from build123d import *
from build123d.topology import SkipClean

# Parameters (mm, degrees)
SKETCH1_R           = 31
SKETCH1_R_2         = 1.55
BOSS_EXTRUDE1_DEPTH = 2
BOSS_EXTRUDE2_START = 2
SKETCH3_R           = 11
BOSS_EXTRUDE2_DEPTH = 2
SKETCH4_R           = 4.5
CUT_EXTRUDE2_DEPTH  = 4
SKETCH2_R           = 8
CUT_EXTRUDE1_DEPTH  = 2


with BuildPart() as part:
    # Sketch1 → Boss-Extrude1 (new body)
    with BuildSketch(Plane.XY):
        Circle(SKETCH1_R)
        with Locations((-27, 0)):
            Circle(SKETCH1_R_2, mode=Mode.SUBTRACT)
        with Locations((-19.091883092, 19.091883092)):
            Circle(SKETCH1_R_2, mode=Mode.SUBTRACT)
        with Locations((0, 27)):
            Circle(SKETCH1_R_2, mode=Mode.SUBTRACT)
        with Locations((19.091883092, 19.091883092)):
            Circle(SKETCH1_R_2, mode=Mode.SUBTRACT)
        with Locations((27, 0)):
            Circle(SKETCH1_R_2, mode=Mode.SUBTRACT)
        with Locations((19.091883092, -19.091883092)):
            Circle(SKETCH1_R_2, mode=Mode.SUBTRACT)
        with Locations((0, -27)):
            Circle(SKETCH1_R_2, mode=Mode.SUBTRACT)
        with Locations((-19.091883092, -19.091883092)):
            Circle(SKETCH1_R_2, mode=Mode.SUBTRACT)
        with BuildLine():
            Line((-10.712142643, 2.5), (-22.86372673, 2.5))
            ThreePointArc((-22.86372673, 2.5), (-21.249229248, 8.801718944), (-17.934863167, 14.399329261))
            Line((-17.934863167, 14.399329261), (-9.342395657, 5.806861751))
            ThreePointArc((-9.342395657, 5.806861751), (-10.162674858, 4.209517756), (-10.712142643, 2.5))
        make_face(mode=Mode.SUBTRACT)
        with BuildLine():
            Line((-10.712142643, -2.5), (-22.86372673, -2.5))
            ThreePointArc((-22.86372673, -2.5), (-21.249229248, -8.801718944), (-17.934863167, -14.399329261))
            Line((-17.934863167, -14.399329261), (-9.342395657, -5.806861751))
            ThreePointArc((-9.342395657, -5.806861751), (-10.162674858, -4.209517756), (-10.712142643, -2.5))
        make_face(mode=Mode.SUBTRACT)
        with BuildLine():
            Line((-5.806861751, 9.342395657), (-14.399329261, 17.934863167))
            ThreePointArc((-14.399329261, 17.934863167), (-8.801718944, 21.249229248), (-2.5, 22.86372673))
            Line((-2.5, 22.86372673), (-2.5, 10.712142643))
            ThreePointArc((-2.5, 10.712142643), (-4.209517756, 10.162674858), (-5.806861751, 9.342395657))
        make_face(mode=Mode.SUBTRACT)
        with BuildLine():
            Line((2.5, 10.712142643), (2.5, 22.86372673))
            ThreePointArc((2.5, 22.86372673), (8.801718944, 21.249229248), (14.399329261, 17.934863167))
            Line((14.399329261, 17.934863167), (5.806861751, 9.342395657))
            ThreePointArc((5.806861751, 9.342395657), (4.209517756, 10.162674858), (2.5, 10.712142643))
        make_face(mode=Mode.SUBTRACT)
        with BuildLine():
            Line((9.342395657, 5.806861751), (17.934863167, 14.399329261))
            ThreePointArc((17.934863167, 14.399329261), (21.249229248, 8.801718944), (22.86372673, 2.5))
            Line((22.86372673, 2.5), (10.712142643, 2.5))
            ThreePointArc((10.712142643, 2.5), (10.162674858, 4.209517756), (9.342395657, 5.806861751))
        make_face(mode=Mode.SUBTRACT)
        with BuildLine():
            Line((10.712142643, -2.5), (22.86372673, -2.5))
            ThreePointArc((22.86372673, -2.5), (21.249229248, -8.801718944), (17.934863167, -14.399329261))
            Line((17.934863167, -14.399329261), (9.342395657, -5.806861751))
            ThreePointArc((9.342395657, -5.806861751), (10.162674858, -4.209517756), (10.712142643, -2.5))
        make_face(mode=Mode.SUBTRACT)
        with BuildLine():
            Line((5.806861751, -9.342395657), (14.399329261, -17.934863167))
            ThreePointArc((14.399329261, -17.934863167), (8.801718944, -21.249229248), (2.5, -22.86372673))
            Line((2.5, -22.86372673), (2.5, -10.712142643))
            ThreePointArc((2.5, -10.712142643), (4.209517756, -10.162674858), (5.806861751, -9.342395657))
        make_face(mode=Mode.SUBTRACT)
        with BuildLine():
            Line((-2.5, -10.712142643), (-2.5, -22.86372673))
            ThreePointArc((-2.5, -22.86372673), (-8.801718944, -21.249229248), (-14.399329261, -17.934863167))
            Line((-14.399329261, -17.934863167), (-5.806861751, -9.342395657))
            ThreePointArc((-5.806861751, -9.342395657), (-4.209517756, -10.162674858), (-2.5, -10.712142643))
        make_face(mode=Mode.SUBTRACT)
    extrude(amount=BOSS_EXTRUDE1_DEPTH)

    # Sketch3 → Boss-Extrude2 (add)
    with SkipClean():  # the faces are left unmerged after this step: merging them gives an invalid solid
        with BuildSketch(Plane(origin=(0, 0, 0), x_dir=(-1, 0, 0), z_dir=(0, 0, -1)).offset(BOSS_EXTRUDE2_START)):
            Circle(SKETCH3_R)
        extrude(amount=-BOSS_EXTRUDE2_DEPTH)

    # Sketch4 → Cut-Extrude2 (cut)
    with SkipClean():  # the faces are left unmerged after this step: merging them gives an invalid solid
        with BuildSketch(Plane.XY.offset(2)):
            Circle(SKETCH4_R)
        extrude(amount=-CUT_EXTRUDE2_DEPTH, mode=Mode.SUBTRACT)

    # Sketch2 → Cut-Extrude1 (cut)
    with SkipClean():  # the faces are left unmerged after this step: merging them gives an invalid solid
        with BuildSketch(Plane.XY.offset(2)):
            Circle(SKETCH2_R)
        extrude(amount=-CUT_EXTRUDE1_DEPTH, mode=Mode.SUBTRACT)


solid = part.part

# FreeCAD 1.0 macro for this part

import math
import FreeCAD as App
import Part
import Sketcher

doc = App.newDocument("Part")
params = doc.addObject("Spreadsheet::Sheet", "Params")
for row, (alias, value) in enumerate([
    ("sketch1_diameter", "62 mm"),
    ("sketch1_radius", "11 mm"),
    ("sketch1_radius2", "23 mm"),
    ("sketch1_diameter2", "3.1 mm"),
    ("pad1_length", "2 mm"),
    ("sketch2_diameter", "22 mm"),
    ("pad2_length", "2 mm"),
    ("sketch3_diameter", "9 mm"),
    ("pocket1_length", "4 mm"),
    ("sketch4_diameter", "16 mm"),
    ("pocket2_length", "2 mm"),
], start=1):
    params.set(f"A{row}", alias)
    params.set(f"B{row}", "=" + value)
    params.setAlias(f"B{row}", alias)

body = doc.addObject("PartDesign::Body", "Body")

sketch1 = body.newObject("Sketcher::SketchObject", "Sketch")
sketch1.AttachmentSupport = (doc.getObject("XY_Plane"), [""])
sketch1.MapMode = "FlatFace"
sketch1.addGeometry(Part.Circle(App.Vector(0, 0, 0), App.Vector(0, 0, 1), 31), False)
sketch1.addGeometry(Part.Circle(App.Vector(-19.091883, -19.091883, 0), App.Vector(0, 0, 1), 1.55), False)
sketch1.addGeometry(Part.ArcOfCircle(Part.Circle(App.Vector(0, 0, 0), App.Vector(0, 0, 1), 11), math.radians(-121.863441), math.radians(-103.136559)), False)
sketch1.addGeometry(Part.LineSegment(App.Vector(-2.5, -10.712143, 0), App.Vector(-2.5, -22.863727, 0)), False)
sketch1.addGeometry(Part.ArcOfCircle(Part.Circle(App.Vector(0, 0, 0), App.Vector(0, 0, 1), 23), math.radians(-128.759869), math.radians(-96.240131)), False)
sketch1.addGeometry(Part.LineSegment(App.Vector(-14.399329, -17.934863, 0), App.Vector(-5.806862, -9.342396, 0)), False)
sketch1.addGeometry(Part.LineSegment(App.Vector(-22.863727, -2.5, 0), App.Vector(-10.712143, -2.5, 0)), False)
sketch1.addGeometry(Part.ArcOfCircle(Part.Circle(App.Vector(0, 0, 0), App.Vector(0, 0, 1), 11), math.radians(-166.863441), math.radians(-148.136559)), False)
sketch1.addGeometry(Part.LineSegment(App.Vector(-9.342396, -5.806862, 0), App.Vector(-17.934863, -14.399329, 0)), False)
sketch1.addGeometry(Part.ArcOfCircle(Part.Circle(App.Vector(0, 0, 0), App.Vector(0, 0, 1), 23), math.radians(-173.759869), math.radians(-141.240131)), False)
sketch1.addGeometry(Part.Circle(App.Vector(0, -27, 0), App.Vector(0, 0, 1), 1.55), False)
sketch1.addGeometry(Part.ArcOfCircle(Part.Circle(App.Vector(0, 0, 0), App.Vector(0, 0, 1), 11), math.radians(-76.863441), math.radians(-58.136559)), False)
sketch1.addGeometry(Part.LineSegment(App.Vector(5.806862, -9.342396, 0), App.Vector(14.399329, -17.934863, 0)), False)
sketch1.addGeometry(Part.ArcOfCircle(Part.Circle(App.Vector(0, 0, 0), App.Vector(0, 0, 1), 23), math.radians(-83.759869), math.radians(-51.240131)), False)
sketch1.addGeometry(Part.LineSegment(App.Vector(2.5, -22.863727, 0), App.Vector(2.5, -10.712143, 0)), False)
sketch1.addGeometry(Part.Circle(App.Vector(19.091883, -19.091883, 0), App.Vector(0, 0, 1), 1.55), False)
sketch1.addGeometry(Part.ArcOfCircle(Part.Circle(App.Vector(0, 0, 0), App.Vector(0, 0, 1), 11), math.radians(-31.863441), math.radians(-13.136559)), False)
sketch1.addGeometry(Part.LineSegment(App.Vector(10.712143, -2.5, 0), App.Vector(22.863727, -2.5, 0)), False)
sketch1.addGeometry(Part.ArcOfCircle(Part.Circle(App.Vector(0, 0, 0), App.Vector(0, 0, 1), 23), math.radians(-38.759869), math.radians(-6.240131)), False)
sketch1.addGeometry(Part.LineSegment(App.Vector(17.934863, -14.399329, 0), App.Vector(9.342396, -5.806862, 0)), False)
sketch1.addGeometry(Part.Circle(App.Vector(-27, 0, 0), App.Vector(0, 0, 1), 1.55), False)
sketch1.addGeometry(Part.ArcOfCircle(Part.Circle(App.Vector(0, 0, 0), App.Vector(0, 0, 1), 11), math.radians(148.136559), math.radians(166.863441)), False)
sketch1.addGeometry(Part.LineSegment(App.Vector(-10.712143, 2.5, 0), App.Vector(-22.863727, 2.5, 0)), False)
sketch1.addGeometry(Part.ArcOfCircle(Part.Circle(App.Vector(0, 0, 0), App.Vector(0, 0, 1), 23), math.radians(141.240131), math.radians(173.759869)), False)
sketch1.addGeometry(Part.LineSegment(App.Vector(-17.934863, 14.399329, 0), App.Vector(-9.342396, 5.806862, 0)), False)
sketch1.addGeometry(Part.Circle(App.Vector(-19.091883, 19.091883, 0), App.Vector(0, 0, 1), 1.55), False)
sketch1.addGeometry(Part.ArcOfCircle(Part.Circle(App.Vector(0, 0, 0), App.Vector(0, 0, 1), 11), math.radians(103.136559), math.radians(121.863441)), False)
sketch1.addGeometry(Part.LineSegment(App.Vector(-5.806862, 9.342396, 0), App.Vector(-14.399329, 17.934863, 0)), False)
sketch1.addGeometry(Part.ArcOfCircle(Part.Circle(App.Vector(0, 0, 0), App.Vector(0, 0, 1), 23), math.radians(96.240131), math.radians(128.759869)), False)
sketch1.addGeometry(Part.LineSegment(App.Vector(-2.5, 22.863727, 0), App.Vector(-2.5, 10.712143, 0)), False)
sketch1.addGeometry(Part.Circle(App.Vector(27, 0, 0), App.Vector(0, 0, 1), 1.55), False)
sketch1.addGeometry(Part.ArcOfCircle(Part.Circle(App.Vector(0, 0, 0), App.Vector(0, 0, 1), 11), math.radians(13.136559), math.radians(31.863441)), False)
sketch1.addGeometry(Part.LineSegment(App.Vector(9.342396, 5.806862, 0), App.Vector(17.934863, 14.399329, 0)), False)
sketch1.addGeometry(Part.ArcOfCircle(Part.Circle(App.Vector(0, 0, 0), App.Vector(0, 0, 1), 23), math.radians(6.240131), math.radians(38.759869)), False)
sketch1.addGeometry(Part.LineSegment(App.Vector(22.863727, 2.5, 0), App.Vector(10.712143, 2.5, 0)), False)
sketch1.addGeometry(Part.ArcOfCircle(Part.Circle(App.Vector(0, 0, 0), App.Vector(0, 0, 1), 11), math.radians(58.136559), math.radians(76.863441)), False)
sketch1.addGeometry(Part.LineSegment(App.Vector(2.5, 10.712143, 0), App.Vector(2.5, 22.863727, 0)), False)
sketch1.addGeometry(Part.ArcOfCircle(Part.Circle(App.Vector(0, 0, 0), App.Vector(0, 0, 1), 23), math.radians(51.240131), math.radians(83.759869)), False)
sketch1.addGeometry(Part.LineSegment(App.Vector(14.399329, 17.934863, 0), App.Vector(5.806862, 9.342396, 0)), False)
sketch1.addGeometry(Part.Circle(App.Vector(0, 27, 0), App.Vector(0, 0, 1), 1.55), False)
sketch1.addGeometry(Part.Circle(App.Vector(19.091883, 19.091883, 0), App.Vector(0, 0, 1), 1.55), False)
sketch1.addConstraint(Sketcher.Constraint("Coincident", 2, 2, 3, 1))
sketch1.addConstraint(Sketcher.Constraint("Coincident", 3, 2, 4, 2))
sketch1.addConstraint(Sketcher.Constraint("Coincident", 4, 1, 5, 1))
sketch1.addConstraint(Sketcher.Constraint("Coincident", 5, 2, 2, 1))
sketch1.addConstraint(Sketcher.Constraint("Coincident", 6, 2, 7, 1))
sketch1.addConstraint(Sketcher.Constraint("Coincident", 7, 2, 8, 1))
sketch1.addConstraint(Sketcher.Constraint("Coincident", 8, 2, 9, 2))
sketch1.addConstraint(Sketcher.Constraint("Coincident", 9, 1, 6, 1))
sketch1.addConstraint(Sketcher.Constraint("Coincident", 11, 2, 12, 1))
sketch1.addConstraint(Sketcher.Constraint("Coincident", 12, 2, 13, 2))
sketch1.addConstraint(Sketcher.Constraint("Coincident", 13, 1, 14, 1))
sketch1.addConstraint(Sketcher.Constraint("Coincident", 14, 2, 11, 1))
sketch1.addConstraint(Sketcher.Constraint("Coincident", 16, 2, 17, 1))
sketch1.addConstraint(Sketcher.Constraint("Coincident", 17, 2, 18, 2))
sketch1.addConstraint(Sketcher.Constraint("Coincident", 18, 1, 19, 1))
sketch1.addConstraint(Sketcher.Constraint("Coincident", 19, 2, 16, 1))
sketch1.addConstraint(Sketcher.Constraint("Coincident", 21, 2, 22, 1))
sketch1.addConstraint(Sketcher.Constraint("Coincident", 22, 2, 23, 2))
sketch1.addConstraint(Sketcher.Constraint("Coincident", 23, 1, 24, 1))
sketch1.addConstraint(Sketcher.Constraint("Coincident", 24, 2, 21, 1))
sketch1.addConstraint(Sketcher.Constraint("Coincident", 26, 2, 27, 1))
sketch1.addConstraint(Sketcher.Constraint("Coincident", 27, 2, 28, 2))
sketch1.addConstraint(Sketcher.Constraint("Coincident", 28, 1, 29, 1))
sketch1.addConstraint(Sketcher.Constraint("Coincident", 29, 2, 26, 1))
sketch1.addConstraint(Sketcher.Constraint("Coincident", 31, 2, 32, 1))
sketch1.addConstraint(Sketcher.Constraint("Coincident", 32, 2, 33, 2))
sketch1.addConstraint(Sketcher.Constraint("Coincident", 33, 1, 34, 1))
sketch1.addConstraint(Sketcher.Constraint("Coincident", 34, 2, 31, 1))
sketch1.addConstraint(Sketcher.Constraint("Coincident", 35, 2, 36, 1))
sketch1.addConstraint(Sketcher.Constraint("Coincident", 36, 2, 37, 2))
sketch1.addConstraint(Sketcher.Constraint("Coincident", 37, 1, 38, 1))
sketch1.addConstraint(Sketcher.Constraint("Coincident", 38, 2, 35, 1))
sketch1.addConstraint(Sketcher.Constraint("Vertical", 3))
sketch1.addConstraint(Sketcher.Constraint("Horizontal", 6))
sketch1.addConstraint(Sketcher.Constraint("Vertical", 14))
sketch1.addConstraint(Sketcher.Constraint("Horizontal", 17))
sketch1.addConstraint(Sketcher.Constraint("Horizontal", 22))
sketch1.addConstraint(Sketcher.Constraint("Vertical", 29))
sketch1.addConstraint(Sketcher.Constraint("Horizontal", 34))
sketch1.addConstraint(Sketcher.Constraint("Vertical", 36))
sketch1.addConstraint(Sketcher.Constraint("Coincident", 0, 3, -1, 1))
sketch1.addConstraint(Sketcher.Constraint("Coincident", 2, 3, -1, 1))
sketch1.addConstraint(Sketcher.Constraint("Coincident", 4, 3, -1, 1))
sketch1.addConstraint(Sketcher.Constraint("Coincident", 7, 3, -1, 1))
sketch1.addConstraint(Sketcher.Constraint("Coincident", 9, 3, -1, 1))
sketch1.addConstraint(Sketcher.Constraint("Coincident", 11, 3, -1, 1))
sketch1.addConstraint(Sketcher.Constraint("Coincident", 13, 3, -1, 1))
sketch1.addConstraint(Sketcher.Constraint("Coincident", 16, 3, -1, 1))
sketch1.addConstraint(Sketcher.Constraint("Coincident", 18, 3, -1, 1))
sketch1.addConstraint(Sketcher.Constraint("Coincident", 21, 3, -1, 1))
sketch1.addConstraint(Sketcher.Constraint("Coincident", 23, 3, -1, 1))
sketch1.addConstraint(Sketcher.Constraint("Coincident", 26, 3, -1, 1))
sketch1.addConstraint(Sketcher.Constraint("Coincident", 28, 3, -1, 1))
sketch1.addConstraint(Sketcher.Constraint("Coincident", 31, 3, -1, 1))
sketch1.addConstraint(Sketcher.Constraint("Coincident", 33, 3, -1, 1))
sketch1.addConstraint(Sketcher.Constraint("Coincident", 35, 3, -1, 1))
sketch1.addConstraint(Sketcher.Constraint("Coincident", 37, 3, -1, 1))
sketch1.addConstraint(Sketcher.Constraint("Equal", 2, 7))
sketch1.addConstraint(Sketcher.Constraint("Equal", 4, 9))
sketch1.addConstraint(Sketcher.Constraint("Equal", 1, 10))
sketch1.addConstraint(Sketcher.Constraint("Equal", 7, 11))
sketch1.addConstraint(Sketcher.Constraint("Equal", 9, 13))
sketch1.addConstraint(Sketcher.Constraint("Equal", 10, 15))
sketch1.addConstraint(Sketcher.Constraint("Equal", 11, 16))
sketch1.addConstraint(Sketcher.Constraint("Equal", 13, 18))
sketch1.addConstraint(Sketcher.Constraint("Equal", 15, 20))
sketch1.addConstraint(Sketcher.Constraint("Equal", 16, 21))
sketch1.addConstraint(Sketcher.Constraint("Equal", 18, 23))
sketch1.addConstraint(Sketcher.Constraint("Equal", 20, 25))
sketch1.addConstraint(Sketcher.Constraint("Equal", 21, 26))
sketch1.addConstraint(Sketcher.Constraint("Equal", 23, 28))
sketch1.addConstraint(Sketcher.Constraint("Equal", 25, 30))
sketch1.addConstraint(Sketcher.Constraint("Equal", 26, 31))
sketch1.addConstraint(Sketcher.Constraint("Equal", 28, 33))
sketch1.addConstraint(Sketcher.Constraint("Equal", 31, 35))
sketch1.addConstraint(Sketcher.Constraint("Equal", 33, 37))
sketch1.addConstraint(Sketcher.Constraint("Equal", 30, 39))
sketch1.addConstraint(Sketcher.Constraint("Equal", 39, 40))
sketch1.addConstraint(Sketcher.Constraint("Symmetric", 15, 3, 25, 3, -1, 1))
sketch1.addConstraint(Sketcher.Constraint("Symmetric", 20, 3, 30, 3, -1, 1))
sketch1.addConstraint(Sketcher.Constraint("Symmetric", 10, 3, 39, 3, -1, 1))
sketch1.addConstraint(Sketcher.Constraint("Symmetric", 1, 3, 40, 3, -1, 1))
sketch1.addConstraint(Sketcher.Constraint("Symmetric", 1, 3, 15, 3, -2))
sketch1.addConstraint(Sketcher.Constraint("PointOnObject", 10, 3, -2))
sketch1.addConstraint(Sketcher.Constraint("PointOnObject", 20, 3, -1))
sketch1.addConstraint(Sketcher.Constraint("Parallel", 5, 8))
sketch1.addConstraint(Sketcher.Constraint("Perpendicular", 8, 12))
sketch1.addConstraint(Sketcher.Constraint("Parallel", 12, 19))
sketch1.addConstraint(Sketcher.Constraint("Parallel", 19, 24))
sketch1.addConstraint(Sketcher.Constraint("Parallel", 24, 27))
sketch1.addConstraint(Sketcher.Constraint("Perpendicular", 27, 32))
sketch1.addConstraint(Sketcher.Constraint("Parallel", 32, 38))
sketch1.addConstraint(Sketcher.Constraint("Horizontal", 5, 2, 11, 2))
sketch1.addConstraint(Sketcher.Constraint("Horizontal", 4, 1, 12, 2))
sketch1.addConstraint(Sketcher.Constraint("Horizontal", 3, 2, 13, 1))
sketch1.addConstraint(Sketcher.Constraint("Horizontal", 9, 1, 16, 2))
sketch1.addConstraint(Sketcher.Constraint("Horizontal", 8, 2, 18, 1))
sketch1.addConstraint(Sketcher.Constraint("Horizontal", 24, 2, 31, 2))
sketch1.addConstraint(Sketcher.Constraint("Horizontal", 22, 2, 33, 1))
sketch1.addConstraint(Sketcher.Constraint("Horizontal", 29, 2, 35, 2))
sketch1.addConstraint(Sketcher.Constraint("Horizontal", 27, 2, 37, 1))
sketch1.addConstraint(Sketcher.Constraint("Vertical", 6, 2, 21, 2))
sketch1.addConstraint(Sketcher.Constraint("Vertical", 8, 2, 23, 1))
sketch1.addConstraint(Sketcher.Constraint("Vertical", 5, 2, 26, 2))
sketch1.addConstraint(Sketcher.Constraint("Vertical", 3, 2, 28, 1))
sketch1.addConstraint(Sketcher.Constraint("Equal", 34, 3))
sketch1.addConstraint(Sketcher.Constraint("Equal", 5, 8))
sketch1.addConstraint(Sketcher.Constraint("Diameter", 0, 62.0))
sketch1.addConstraint(Sketcher.Constraint("Radius", 2, 11.0))
sketch1.addConstraint(Sketcher.Constraint("Radius", 4, 23.0))
sketch1.addConstraint(Sketcher.Constraint("Diameter", 1, 3.1))
sketch1.addConstraint(Sketcher.Constraint("DistanceY", 10, 3, -1, 1, 27.0))
sketch1.addConstraint(Sketcher.Constraint("DistanceX", 20, 3, -1, 1, 27.0))
sketch1.addConstraint(Sketcher.Constraint("DistanceX", 3, 2, 13, 1, 5.0))
sketch1.addConstraint(Sketcher.Constraint("DistanceX", 8, 2, 5, 2, 12.128001))
sketch1.addConstraint(Sketcher.Constraint("DistanceY", 1, 3, 4, 1, 1.15702))
sketch1.addConstraint(Sketcher.Constraint("DistanceX", 1, 3, 8, 2, 1.15702))
sketch1.setExpression("Constraints[107]", "Params.sketch1_diameter")
sketch1.setExpression("Constraints[108]", "Params.sketch1_radius")
sketch1.setExpression("Constraints[109]", "Params.sketch1_radius2")
sketch1.setExpression("Constraints[110]", "Params.sketch1_diameter2")
pad1 = body.newObject("PartDesign::Pad", "Pad")
pad1.Profile = sketch1
pad1.setExpression("Length", "Params.pad1_length")

sketch2 = body.newObject("Sketcher::SketchObject", "Sketch001")
sketch2.AttachmentSupport = (doc.getObject("XY_Plane"), [""])
sketch2.MapMode = "FlatFace"
sketch2.AttachmentOffset = App.Placement(App.Vector(0, 0, -2), App.Rotation())
sketch2.addGeometry(Part.Circle(App.Vector(0, 0, 0), App.Vector(0, 0, 1), 11), False)
sketch2.addConstraint(Sketcher.Constraint("Coincident", 0, 3, -1, 1))
sketch2.addConstraint(Sketcher.Constraint("Diameter", 0, 22.0))
sketch2.setExpression("Constraints[1]", "Params.sketch2_diameter")
pad2 = body.newObject("PartDesign::Pad", "Pad001")
pad2.Profile = sketch2
pad2.setExpression("Length", "Params.pad2_length")

sketch3 = body.newObject("Sketcher::SketchObject", "Sketch002")
sketch3.AttachmentSupport = (doc.getObject("XY_Plane"), [""])
sketch3.MapMode = "FlatFace"
sketch3.AttachmentOffset = App.Placement(App.Vector(0, 0, 2), App.Rotation())
sketch3.addGeometry(Part.Circle(App.Vector(0, 0, 0), App.Vector(0, 0, 1), 4.5), False)
sketch3.addConstraint(Sketcher.Constraint("Coincident", 0, 3, -1, 1))
sketch3.addConstraint(Sketcher.Constraint("Diameter", 0, 9.0))
sketch3.setExpression("Constraints[1]", "Params.sketch3_diameter")
pocket1 = body.newObject("PartDesign::Pocket", "Pocket")
pocket1.Profile = sketch3
pocket1.setExpression("Length", "Params.pocket1_length")

sketch4 = body.newObject("Sketcher::SketchObject", "Sketch003")
sketch4.AttachmentSupport = (doc.getObject("XY_Plane"), [""])
sketch4.MapMode = "FlatFace"
sketch4.AttachmentOffset = App.Placement(App.Vector(0, 0, 2), App.Rotation())
sketch4.addGeometry(Part.Circle(App.Vector(0, 0, 0), App.Vector(0, 0, 1), 8), False)
sketch4.addConstraint(Sketcher.Constraint("Coincident", 0, 3, -1, 1))
sketch4.addConstraint(Sketcher.Constraint("Diameter", 0, 16.0))
sketch4.setExpression("Constraints[1]", "Params.sketch4_diameter")
pocket2 = body.newObject("PartDesign::Pocket", "Pocket001")
pocket2.Profile = sketch4
pocket2.setExpression("Length", "Params.pocket2_length")

doc.recompute()
